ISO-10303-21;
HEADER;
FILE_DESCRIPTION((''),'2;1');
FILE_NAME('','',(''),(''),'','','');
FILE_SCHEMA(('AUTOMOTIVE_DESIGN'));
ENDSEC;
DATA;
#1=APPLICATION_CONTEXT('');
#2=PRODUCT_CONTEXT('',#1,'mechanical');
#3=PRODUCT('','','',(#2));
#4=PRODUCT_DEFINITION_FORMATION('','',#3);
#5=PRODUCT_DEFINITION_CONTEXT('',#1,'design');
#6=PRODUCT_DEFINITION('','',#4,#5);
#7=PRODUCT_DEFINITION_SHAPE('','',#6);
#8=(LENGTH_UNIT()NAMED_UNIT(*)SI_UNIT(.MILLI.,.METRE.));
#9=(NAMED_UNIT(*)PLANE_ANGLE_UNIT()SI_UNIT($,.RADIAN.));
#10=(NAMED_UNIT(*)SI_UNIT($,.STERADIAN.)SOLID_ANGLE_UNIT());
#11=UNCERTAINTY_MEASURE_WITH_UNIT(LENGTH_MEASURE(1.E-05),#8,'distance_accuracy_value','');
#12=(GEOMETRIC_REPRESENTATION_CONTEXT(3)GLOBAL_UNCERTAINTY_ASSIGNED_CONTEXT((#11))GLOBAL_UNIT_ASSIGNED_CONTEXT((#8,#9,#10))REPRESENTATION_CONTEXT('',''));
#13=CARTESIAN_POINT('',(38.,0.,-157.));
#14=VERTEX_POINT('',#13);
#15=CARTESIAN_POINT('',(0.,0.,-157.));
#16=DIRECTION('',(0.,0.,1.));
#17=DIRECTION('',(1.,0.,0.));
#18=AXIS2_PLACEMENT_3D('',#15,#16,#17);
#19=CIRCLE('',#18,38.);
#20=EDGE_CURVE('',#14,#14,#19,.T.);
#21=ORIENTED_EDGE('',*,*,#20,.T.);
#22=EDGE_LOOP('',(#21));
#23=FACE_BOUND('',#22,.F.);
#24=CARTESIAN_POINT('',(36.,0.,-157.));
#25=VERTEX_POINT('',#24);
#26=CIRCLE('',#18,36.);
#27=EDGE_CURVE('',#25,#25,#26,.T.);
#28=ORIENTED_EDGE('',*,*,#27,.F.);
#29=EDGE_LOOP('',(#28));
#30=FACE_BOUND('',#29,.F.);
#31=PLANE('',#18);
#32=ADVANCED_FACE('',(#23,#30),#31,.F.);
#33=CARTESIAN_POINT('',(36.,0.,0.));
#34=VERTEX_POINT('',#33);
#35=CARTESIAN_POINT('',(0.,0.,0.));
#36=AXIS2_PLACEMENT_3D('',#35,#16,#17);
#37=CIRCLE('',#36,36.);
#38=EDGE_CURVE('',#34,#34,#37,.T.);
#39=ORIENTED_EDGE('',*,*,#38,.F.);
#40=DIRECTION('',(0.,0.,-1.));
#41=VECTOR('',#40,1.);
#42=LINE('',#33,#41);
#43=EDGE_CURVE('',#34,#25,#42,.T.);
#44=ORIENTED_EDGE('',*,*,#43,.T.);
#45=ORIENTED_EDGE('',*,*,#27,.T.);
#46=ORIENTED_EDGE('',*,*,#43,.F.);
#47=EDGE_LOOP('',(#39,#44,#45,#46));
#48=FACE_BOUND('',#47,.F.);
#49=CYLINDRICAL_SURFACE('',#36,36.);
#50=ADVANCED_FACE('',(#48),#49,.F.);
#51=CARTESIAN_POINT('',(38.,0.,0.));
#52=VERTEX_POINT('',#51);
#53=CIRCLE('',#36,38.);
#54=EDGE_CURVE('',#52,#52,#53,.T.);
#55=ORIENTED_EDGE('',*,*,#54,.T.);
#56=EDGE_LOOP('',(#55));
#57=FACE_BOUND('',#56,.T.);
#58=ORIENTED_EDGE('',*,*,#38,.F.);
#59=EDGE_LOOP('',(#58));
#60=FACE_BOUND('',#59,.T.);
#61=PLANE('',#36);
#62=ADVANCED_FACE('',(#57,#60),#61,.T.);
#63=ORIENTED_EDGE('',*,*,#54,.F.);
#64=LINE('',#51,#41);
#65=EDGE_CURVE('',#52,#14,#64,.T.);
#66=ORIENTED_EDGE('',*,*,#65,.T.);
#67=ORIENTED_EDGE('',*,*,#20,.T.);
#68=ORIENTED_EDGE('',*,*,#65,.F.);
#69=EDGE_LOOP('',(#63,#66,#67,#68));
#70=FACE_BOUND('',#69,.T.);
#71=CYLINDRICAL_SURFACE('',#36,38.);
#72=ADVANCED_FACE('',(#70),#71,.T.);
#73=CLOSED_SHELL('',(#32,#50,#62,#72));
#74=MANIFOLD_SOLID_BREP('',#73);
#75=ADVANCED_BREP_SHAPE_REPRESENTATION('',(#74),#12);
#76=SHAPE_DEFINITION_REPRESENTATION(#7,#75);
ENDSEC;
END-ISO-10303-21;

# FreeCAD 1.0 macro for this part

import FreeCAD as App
import Part
import Sketcher

doc = App.newDocument("Part")
params = doc.addObject("Spreadsheet::Sheet", "Params")
for row, (alias, value) in enumerate([
    ("sketch1_diameter", "76 mm"),
    ("sketch1_diameter2", "72 mm"),
    ("pad1_length", "157 mm"),
], start=1):
    params.set(f"A{row}", alias)
    params.set(f"B{row}", "=" + value)
    params.setAlias(f"B{row}", alias)

body = doc.addObject("PartDesign::Body", "Body")

# Sketch on XY plane
sketch1 = body.newObject("Sketcher::SketchObject", "Sketch")
sketch1.AttachmentSupport = (doc.getObject("XY_Plane"), [""])
sketch1.MapMode = "FlatFace"
sketch1.addGeometry(Part.Circle(App.Vector(0, 0, 0), App.Vector(0, 0, 1), 38), False)
sketch1.addGeometry(Part.Circle(App.Vector(0, 0, 0), App.Vector(0, 0, 1), 36), False)
sketch1.addConstraint(Sketcher.Constraint("Coincident", 0, 3, -1, 1))
sketch1.addConstraint(Sketcher.Constraint("Coincident", 1, 3, -1, 1))
sketch1.addConstraint(Sketcher.Constraint("Diameter", 0, 76.0))
sketch1.addConstraint(Sketcher.Constraint("Diameter", 1, 72.0))
sketch1.setExpression("Constraints[2]", "Params.sketch1_diameter")
sketch1.setExpression("Constraints[3]", "Params.sketch1_diameter2")
pad1 = body.newObject("PartDesign::Pad", "Pad")
pad1.Profile = sketch1
pad1.setExpression("Length", "Params.pad1_length")
pad1.Reversed = True

doc.recompute()
